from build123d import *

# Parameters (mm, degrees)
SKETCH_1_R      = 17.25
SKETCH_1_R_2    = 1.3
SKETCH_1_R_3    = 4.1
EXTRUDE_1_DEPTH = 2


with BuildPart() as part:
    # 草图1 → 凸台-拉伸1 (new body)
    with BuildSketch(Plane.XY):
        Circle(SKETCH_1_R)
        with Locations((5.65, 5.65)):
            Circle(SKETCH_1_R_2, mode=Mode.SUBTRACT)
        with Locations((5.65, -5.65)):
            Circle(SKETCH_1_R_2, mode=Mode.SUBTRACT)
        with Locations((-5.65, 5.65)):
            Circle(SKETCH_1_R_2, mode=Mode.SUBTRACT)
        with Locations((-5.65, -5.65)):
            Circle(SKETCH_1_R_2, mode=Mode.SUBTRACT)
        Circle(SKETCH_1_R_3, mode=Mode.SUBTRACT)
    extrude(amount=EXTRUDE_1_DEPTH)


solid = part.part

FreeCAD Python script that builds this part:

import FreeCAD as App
import Part
import Sketcher

V = App.Vector
Q = App.Units.Quantity

doc = App.newDocument("Part")
body = doc.addObject("PartDesign::Body", "Body")

# Sketch on XY plane
sketch1 = body.newObject("Sketcher::SketchObject", "Sketch")
sketch1.AttachmentSupport = (doc.getObject("XY_Plane"), [""])
sketch1.MapMode = "FlatFace"
sketch1.addGeometry(Part.Circle(V(0, 0, 0), V(0, 0, 1), 17.2), False)
sketch1.addGeometry(Part.Circle(V(-5.7, -5.7, 0), V(0, 0, 1), 1.3), False)
sketch1.addGeometry(Part.Circle(V(5.7, -5.7, 0), V(0, 0, 1), 1.3), False)
sketch1.addGeometry(Part.Circle(V(-5.7, 5.7, 0), V(0, 0, 1), 1.3), False)
sketch1.addGeometry(Part.Circle(V(0, 0, 0), V(0, 0, 1), 4.1), False)
sketch1.addGeometry(Part.Circle(V(5.7, 5.7, 0), V(0, 0, 1), 1.3), False)
sketch1.addConstraint(Sketcher.Constraint("Coincident", 0, 3, -1, 1))
sketch1.addConstraint(Sketcher.Constraint("Coincident", 4, 3, -1, 1))
sketch1.addConstraint(Sketcher.Constraint("Equal", 1, 2))
sketch1.addConstraint(Sketcher.Constraint("Equal", 2, 3))
sketch1.addConstraint(Sketcher.Constraint("Equal", 3, 5))
sketch1.addConstraint(Sketcher.Constraint("Symmetric", 2, 3, 3, 3, -1, 1))
sketch1.addConstraint(Sketcher.Constraint("Symmetric", 1, 3, 5, 3, -1, 1))
sketch1.addConstraint(Sketcher.Constraint("Symmetric", 1, 3, 2, 3, -2))
sketch1.addConstraint(Sketcher.Constraint("Diameter", 0, Q("34.5 mm")))
sketch1.addConstraint(Sketcher.Constraint("Diameter", 1, Q("2.6 mm")))
sketch1.addConstraint(Sketcher.Constraint("Diameter", 4, Q("8.2 mm")))
sketch1.addConstraint(Sketcher.Constraint("DistanceX", 1, 3, 2, 3, Q("11.3 mm")))
sketch1.addConstraint(Sketcher.Constraint("DistanceY", 1, 3, 3, 3, Q("11.3 mm")))
pad1 = body.newObject("PartDesign::Pad", "Pad")
pad1.Profile = sketch1
pad1.Length = 2

doc.recompute()
